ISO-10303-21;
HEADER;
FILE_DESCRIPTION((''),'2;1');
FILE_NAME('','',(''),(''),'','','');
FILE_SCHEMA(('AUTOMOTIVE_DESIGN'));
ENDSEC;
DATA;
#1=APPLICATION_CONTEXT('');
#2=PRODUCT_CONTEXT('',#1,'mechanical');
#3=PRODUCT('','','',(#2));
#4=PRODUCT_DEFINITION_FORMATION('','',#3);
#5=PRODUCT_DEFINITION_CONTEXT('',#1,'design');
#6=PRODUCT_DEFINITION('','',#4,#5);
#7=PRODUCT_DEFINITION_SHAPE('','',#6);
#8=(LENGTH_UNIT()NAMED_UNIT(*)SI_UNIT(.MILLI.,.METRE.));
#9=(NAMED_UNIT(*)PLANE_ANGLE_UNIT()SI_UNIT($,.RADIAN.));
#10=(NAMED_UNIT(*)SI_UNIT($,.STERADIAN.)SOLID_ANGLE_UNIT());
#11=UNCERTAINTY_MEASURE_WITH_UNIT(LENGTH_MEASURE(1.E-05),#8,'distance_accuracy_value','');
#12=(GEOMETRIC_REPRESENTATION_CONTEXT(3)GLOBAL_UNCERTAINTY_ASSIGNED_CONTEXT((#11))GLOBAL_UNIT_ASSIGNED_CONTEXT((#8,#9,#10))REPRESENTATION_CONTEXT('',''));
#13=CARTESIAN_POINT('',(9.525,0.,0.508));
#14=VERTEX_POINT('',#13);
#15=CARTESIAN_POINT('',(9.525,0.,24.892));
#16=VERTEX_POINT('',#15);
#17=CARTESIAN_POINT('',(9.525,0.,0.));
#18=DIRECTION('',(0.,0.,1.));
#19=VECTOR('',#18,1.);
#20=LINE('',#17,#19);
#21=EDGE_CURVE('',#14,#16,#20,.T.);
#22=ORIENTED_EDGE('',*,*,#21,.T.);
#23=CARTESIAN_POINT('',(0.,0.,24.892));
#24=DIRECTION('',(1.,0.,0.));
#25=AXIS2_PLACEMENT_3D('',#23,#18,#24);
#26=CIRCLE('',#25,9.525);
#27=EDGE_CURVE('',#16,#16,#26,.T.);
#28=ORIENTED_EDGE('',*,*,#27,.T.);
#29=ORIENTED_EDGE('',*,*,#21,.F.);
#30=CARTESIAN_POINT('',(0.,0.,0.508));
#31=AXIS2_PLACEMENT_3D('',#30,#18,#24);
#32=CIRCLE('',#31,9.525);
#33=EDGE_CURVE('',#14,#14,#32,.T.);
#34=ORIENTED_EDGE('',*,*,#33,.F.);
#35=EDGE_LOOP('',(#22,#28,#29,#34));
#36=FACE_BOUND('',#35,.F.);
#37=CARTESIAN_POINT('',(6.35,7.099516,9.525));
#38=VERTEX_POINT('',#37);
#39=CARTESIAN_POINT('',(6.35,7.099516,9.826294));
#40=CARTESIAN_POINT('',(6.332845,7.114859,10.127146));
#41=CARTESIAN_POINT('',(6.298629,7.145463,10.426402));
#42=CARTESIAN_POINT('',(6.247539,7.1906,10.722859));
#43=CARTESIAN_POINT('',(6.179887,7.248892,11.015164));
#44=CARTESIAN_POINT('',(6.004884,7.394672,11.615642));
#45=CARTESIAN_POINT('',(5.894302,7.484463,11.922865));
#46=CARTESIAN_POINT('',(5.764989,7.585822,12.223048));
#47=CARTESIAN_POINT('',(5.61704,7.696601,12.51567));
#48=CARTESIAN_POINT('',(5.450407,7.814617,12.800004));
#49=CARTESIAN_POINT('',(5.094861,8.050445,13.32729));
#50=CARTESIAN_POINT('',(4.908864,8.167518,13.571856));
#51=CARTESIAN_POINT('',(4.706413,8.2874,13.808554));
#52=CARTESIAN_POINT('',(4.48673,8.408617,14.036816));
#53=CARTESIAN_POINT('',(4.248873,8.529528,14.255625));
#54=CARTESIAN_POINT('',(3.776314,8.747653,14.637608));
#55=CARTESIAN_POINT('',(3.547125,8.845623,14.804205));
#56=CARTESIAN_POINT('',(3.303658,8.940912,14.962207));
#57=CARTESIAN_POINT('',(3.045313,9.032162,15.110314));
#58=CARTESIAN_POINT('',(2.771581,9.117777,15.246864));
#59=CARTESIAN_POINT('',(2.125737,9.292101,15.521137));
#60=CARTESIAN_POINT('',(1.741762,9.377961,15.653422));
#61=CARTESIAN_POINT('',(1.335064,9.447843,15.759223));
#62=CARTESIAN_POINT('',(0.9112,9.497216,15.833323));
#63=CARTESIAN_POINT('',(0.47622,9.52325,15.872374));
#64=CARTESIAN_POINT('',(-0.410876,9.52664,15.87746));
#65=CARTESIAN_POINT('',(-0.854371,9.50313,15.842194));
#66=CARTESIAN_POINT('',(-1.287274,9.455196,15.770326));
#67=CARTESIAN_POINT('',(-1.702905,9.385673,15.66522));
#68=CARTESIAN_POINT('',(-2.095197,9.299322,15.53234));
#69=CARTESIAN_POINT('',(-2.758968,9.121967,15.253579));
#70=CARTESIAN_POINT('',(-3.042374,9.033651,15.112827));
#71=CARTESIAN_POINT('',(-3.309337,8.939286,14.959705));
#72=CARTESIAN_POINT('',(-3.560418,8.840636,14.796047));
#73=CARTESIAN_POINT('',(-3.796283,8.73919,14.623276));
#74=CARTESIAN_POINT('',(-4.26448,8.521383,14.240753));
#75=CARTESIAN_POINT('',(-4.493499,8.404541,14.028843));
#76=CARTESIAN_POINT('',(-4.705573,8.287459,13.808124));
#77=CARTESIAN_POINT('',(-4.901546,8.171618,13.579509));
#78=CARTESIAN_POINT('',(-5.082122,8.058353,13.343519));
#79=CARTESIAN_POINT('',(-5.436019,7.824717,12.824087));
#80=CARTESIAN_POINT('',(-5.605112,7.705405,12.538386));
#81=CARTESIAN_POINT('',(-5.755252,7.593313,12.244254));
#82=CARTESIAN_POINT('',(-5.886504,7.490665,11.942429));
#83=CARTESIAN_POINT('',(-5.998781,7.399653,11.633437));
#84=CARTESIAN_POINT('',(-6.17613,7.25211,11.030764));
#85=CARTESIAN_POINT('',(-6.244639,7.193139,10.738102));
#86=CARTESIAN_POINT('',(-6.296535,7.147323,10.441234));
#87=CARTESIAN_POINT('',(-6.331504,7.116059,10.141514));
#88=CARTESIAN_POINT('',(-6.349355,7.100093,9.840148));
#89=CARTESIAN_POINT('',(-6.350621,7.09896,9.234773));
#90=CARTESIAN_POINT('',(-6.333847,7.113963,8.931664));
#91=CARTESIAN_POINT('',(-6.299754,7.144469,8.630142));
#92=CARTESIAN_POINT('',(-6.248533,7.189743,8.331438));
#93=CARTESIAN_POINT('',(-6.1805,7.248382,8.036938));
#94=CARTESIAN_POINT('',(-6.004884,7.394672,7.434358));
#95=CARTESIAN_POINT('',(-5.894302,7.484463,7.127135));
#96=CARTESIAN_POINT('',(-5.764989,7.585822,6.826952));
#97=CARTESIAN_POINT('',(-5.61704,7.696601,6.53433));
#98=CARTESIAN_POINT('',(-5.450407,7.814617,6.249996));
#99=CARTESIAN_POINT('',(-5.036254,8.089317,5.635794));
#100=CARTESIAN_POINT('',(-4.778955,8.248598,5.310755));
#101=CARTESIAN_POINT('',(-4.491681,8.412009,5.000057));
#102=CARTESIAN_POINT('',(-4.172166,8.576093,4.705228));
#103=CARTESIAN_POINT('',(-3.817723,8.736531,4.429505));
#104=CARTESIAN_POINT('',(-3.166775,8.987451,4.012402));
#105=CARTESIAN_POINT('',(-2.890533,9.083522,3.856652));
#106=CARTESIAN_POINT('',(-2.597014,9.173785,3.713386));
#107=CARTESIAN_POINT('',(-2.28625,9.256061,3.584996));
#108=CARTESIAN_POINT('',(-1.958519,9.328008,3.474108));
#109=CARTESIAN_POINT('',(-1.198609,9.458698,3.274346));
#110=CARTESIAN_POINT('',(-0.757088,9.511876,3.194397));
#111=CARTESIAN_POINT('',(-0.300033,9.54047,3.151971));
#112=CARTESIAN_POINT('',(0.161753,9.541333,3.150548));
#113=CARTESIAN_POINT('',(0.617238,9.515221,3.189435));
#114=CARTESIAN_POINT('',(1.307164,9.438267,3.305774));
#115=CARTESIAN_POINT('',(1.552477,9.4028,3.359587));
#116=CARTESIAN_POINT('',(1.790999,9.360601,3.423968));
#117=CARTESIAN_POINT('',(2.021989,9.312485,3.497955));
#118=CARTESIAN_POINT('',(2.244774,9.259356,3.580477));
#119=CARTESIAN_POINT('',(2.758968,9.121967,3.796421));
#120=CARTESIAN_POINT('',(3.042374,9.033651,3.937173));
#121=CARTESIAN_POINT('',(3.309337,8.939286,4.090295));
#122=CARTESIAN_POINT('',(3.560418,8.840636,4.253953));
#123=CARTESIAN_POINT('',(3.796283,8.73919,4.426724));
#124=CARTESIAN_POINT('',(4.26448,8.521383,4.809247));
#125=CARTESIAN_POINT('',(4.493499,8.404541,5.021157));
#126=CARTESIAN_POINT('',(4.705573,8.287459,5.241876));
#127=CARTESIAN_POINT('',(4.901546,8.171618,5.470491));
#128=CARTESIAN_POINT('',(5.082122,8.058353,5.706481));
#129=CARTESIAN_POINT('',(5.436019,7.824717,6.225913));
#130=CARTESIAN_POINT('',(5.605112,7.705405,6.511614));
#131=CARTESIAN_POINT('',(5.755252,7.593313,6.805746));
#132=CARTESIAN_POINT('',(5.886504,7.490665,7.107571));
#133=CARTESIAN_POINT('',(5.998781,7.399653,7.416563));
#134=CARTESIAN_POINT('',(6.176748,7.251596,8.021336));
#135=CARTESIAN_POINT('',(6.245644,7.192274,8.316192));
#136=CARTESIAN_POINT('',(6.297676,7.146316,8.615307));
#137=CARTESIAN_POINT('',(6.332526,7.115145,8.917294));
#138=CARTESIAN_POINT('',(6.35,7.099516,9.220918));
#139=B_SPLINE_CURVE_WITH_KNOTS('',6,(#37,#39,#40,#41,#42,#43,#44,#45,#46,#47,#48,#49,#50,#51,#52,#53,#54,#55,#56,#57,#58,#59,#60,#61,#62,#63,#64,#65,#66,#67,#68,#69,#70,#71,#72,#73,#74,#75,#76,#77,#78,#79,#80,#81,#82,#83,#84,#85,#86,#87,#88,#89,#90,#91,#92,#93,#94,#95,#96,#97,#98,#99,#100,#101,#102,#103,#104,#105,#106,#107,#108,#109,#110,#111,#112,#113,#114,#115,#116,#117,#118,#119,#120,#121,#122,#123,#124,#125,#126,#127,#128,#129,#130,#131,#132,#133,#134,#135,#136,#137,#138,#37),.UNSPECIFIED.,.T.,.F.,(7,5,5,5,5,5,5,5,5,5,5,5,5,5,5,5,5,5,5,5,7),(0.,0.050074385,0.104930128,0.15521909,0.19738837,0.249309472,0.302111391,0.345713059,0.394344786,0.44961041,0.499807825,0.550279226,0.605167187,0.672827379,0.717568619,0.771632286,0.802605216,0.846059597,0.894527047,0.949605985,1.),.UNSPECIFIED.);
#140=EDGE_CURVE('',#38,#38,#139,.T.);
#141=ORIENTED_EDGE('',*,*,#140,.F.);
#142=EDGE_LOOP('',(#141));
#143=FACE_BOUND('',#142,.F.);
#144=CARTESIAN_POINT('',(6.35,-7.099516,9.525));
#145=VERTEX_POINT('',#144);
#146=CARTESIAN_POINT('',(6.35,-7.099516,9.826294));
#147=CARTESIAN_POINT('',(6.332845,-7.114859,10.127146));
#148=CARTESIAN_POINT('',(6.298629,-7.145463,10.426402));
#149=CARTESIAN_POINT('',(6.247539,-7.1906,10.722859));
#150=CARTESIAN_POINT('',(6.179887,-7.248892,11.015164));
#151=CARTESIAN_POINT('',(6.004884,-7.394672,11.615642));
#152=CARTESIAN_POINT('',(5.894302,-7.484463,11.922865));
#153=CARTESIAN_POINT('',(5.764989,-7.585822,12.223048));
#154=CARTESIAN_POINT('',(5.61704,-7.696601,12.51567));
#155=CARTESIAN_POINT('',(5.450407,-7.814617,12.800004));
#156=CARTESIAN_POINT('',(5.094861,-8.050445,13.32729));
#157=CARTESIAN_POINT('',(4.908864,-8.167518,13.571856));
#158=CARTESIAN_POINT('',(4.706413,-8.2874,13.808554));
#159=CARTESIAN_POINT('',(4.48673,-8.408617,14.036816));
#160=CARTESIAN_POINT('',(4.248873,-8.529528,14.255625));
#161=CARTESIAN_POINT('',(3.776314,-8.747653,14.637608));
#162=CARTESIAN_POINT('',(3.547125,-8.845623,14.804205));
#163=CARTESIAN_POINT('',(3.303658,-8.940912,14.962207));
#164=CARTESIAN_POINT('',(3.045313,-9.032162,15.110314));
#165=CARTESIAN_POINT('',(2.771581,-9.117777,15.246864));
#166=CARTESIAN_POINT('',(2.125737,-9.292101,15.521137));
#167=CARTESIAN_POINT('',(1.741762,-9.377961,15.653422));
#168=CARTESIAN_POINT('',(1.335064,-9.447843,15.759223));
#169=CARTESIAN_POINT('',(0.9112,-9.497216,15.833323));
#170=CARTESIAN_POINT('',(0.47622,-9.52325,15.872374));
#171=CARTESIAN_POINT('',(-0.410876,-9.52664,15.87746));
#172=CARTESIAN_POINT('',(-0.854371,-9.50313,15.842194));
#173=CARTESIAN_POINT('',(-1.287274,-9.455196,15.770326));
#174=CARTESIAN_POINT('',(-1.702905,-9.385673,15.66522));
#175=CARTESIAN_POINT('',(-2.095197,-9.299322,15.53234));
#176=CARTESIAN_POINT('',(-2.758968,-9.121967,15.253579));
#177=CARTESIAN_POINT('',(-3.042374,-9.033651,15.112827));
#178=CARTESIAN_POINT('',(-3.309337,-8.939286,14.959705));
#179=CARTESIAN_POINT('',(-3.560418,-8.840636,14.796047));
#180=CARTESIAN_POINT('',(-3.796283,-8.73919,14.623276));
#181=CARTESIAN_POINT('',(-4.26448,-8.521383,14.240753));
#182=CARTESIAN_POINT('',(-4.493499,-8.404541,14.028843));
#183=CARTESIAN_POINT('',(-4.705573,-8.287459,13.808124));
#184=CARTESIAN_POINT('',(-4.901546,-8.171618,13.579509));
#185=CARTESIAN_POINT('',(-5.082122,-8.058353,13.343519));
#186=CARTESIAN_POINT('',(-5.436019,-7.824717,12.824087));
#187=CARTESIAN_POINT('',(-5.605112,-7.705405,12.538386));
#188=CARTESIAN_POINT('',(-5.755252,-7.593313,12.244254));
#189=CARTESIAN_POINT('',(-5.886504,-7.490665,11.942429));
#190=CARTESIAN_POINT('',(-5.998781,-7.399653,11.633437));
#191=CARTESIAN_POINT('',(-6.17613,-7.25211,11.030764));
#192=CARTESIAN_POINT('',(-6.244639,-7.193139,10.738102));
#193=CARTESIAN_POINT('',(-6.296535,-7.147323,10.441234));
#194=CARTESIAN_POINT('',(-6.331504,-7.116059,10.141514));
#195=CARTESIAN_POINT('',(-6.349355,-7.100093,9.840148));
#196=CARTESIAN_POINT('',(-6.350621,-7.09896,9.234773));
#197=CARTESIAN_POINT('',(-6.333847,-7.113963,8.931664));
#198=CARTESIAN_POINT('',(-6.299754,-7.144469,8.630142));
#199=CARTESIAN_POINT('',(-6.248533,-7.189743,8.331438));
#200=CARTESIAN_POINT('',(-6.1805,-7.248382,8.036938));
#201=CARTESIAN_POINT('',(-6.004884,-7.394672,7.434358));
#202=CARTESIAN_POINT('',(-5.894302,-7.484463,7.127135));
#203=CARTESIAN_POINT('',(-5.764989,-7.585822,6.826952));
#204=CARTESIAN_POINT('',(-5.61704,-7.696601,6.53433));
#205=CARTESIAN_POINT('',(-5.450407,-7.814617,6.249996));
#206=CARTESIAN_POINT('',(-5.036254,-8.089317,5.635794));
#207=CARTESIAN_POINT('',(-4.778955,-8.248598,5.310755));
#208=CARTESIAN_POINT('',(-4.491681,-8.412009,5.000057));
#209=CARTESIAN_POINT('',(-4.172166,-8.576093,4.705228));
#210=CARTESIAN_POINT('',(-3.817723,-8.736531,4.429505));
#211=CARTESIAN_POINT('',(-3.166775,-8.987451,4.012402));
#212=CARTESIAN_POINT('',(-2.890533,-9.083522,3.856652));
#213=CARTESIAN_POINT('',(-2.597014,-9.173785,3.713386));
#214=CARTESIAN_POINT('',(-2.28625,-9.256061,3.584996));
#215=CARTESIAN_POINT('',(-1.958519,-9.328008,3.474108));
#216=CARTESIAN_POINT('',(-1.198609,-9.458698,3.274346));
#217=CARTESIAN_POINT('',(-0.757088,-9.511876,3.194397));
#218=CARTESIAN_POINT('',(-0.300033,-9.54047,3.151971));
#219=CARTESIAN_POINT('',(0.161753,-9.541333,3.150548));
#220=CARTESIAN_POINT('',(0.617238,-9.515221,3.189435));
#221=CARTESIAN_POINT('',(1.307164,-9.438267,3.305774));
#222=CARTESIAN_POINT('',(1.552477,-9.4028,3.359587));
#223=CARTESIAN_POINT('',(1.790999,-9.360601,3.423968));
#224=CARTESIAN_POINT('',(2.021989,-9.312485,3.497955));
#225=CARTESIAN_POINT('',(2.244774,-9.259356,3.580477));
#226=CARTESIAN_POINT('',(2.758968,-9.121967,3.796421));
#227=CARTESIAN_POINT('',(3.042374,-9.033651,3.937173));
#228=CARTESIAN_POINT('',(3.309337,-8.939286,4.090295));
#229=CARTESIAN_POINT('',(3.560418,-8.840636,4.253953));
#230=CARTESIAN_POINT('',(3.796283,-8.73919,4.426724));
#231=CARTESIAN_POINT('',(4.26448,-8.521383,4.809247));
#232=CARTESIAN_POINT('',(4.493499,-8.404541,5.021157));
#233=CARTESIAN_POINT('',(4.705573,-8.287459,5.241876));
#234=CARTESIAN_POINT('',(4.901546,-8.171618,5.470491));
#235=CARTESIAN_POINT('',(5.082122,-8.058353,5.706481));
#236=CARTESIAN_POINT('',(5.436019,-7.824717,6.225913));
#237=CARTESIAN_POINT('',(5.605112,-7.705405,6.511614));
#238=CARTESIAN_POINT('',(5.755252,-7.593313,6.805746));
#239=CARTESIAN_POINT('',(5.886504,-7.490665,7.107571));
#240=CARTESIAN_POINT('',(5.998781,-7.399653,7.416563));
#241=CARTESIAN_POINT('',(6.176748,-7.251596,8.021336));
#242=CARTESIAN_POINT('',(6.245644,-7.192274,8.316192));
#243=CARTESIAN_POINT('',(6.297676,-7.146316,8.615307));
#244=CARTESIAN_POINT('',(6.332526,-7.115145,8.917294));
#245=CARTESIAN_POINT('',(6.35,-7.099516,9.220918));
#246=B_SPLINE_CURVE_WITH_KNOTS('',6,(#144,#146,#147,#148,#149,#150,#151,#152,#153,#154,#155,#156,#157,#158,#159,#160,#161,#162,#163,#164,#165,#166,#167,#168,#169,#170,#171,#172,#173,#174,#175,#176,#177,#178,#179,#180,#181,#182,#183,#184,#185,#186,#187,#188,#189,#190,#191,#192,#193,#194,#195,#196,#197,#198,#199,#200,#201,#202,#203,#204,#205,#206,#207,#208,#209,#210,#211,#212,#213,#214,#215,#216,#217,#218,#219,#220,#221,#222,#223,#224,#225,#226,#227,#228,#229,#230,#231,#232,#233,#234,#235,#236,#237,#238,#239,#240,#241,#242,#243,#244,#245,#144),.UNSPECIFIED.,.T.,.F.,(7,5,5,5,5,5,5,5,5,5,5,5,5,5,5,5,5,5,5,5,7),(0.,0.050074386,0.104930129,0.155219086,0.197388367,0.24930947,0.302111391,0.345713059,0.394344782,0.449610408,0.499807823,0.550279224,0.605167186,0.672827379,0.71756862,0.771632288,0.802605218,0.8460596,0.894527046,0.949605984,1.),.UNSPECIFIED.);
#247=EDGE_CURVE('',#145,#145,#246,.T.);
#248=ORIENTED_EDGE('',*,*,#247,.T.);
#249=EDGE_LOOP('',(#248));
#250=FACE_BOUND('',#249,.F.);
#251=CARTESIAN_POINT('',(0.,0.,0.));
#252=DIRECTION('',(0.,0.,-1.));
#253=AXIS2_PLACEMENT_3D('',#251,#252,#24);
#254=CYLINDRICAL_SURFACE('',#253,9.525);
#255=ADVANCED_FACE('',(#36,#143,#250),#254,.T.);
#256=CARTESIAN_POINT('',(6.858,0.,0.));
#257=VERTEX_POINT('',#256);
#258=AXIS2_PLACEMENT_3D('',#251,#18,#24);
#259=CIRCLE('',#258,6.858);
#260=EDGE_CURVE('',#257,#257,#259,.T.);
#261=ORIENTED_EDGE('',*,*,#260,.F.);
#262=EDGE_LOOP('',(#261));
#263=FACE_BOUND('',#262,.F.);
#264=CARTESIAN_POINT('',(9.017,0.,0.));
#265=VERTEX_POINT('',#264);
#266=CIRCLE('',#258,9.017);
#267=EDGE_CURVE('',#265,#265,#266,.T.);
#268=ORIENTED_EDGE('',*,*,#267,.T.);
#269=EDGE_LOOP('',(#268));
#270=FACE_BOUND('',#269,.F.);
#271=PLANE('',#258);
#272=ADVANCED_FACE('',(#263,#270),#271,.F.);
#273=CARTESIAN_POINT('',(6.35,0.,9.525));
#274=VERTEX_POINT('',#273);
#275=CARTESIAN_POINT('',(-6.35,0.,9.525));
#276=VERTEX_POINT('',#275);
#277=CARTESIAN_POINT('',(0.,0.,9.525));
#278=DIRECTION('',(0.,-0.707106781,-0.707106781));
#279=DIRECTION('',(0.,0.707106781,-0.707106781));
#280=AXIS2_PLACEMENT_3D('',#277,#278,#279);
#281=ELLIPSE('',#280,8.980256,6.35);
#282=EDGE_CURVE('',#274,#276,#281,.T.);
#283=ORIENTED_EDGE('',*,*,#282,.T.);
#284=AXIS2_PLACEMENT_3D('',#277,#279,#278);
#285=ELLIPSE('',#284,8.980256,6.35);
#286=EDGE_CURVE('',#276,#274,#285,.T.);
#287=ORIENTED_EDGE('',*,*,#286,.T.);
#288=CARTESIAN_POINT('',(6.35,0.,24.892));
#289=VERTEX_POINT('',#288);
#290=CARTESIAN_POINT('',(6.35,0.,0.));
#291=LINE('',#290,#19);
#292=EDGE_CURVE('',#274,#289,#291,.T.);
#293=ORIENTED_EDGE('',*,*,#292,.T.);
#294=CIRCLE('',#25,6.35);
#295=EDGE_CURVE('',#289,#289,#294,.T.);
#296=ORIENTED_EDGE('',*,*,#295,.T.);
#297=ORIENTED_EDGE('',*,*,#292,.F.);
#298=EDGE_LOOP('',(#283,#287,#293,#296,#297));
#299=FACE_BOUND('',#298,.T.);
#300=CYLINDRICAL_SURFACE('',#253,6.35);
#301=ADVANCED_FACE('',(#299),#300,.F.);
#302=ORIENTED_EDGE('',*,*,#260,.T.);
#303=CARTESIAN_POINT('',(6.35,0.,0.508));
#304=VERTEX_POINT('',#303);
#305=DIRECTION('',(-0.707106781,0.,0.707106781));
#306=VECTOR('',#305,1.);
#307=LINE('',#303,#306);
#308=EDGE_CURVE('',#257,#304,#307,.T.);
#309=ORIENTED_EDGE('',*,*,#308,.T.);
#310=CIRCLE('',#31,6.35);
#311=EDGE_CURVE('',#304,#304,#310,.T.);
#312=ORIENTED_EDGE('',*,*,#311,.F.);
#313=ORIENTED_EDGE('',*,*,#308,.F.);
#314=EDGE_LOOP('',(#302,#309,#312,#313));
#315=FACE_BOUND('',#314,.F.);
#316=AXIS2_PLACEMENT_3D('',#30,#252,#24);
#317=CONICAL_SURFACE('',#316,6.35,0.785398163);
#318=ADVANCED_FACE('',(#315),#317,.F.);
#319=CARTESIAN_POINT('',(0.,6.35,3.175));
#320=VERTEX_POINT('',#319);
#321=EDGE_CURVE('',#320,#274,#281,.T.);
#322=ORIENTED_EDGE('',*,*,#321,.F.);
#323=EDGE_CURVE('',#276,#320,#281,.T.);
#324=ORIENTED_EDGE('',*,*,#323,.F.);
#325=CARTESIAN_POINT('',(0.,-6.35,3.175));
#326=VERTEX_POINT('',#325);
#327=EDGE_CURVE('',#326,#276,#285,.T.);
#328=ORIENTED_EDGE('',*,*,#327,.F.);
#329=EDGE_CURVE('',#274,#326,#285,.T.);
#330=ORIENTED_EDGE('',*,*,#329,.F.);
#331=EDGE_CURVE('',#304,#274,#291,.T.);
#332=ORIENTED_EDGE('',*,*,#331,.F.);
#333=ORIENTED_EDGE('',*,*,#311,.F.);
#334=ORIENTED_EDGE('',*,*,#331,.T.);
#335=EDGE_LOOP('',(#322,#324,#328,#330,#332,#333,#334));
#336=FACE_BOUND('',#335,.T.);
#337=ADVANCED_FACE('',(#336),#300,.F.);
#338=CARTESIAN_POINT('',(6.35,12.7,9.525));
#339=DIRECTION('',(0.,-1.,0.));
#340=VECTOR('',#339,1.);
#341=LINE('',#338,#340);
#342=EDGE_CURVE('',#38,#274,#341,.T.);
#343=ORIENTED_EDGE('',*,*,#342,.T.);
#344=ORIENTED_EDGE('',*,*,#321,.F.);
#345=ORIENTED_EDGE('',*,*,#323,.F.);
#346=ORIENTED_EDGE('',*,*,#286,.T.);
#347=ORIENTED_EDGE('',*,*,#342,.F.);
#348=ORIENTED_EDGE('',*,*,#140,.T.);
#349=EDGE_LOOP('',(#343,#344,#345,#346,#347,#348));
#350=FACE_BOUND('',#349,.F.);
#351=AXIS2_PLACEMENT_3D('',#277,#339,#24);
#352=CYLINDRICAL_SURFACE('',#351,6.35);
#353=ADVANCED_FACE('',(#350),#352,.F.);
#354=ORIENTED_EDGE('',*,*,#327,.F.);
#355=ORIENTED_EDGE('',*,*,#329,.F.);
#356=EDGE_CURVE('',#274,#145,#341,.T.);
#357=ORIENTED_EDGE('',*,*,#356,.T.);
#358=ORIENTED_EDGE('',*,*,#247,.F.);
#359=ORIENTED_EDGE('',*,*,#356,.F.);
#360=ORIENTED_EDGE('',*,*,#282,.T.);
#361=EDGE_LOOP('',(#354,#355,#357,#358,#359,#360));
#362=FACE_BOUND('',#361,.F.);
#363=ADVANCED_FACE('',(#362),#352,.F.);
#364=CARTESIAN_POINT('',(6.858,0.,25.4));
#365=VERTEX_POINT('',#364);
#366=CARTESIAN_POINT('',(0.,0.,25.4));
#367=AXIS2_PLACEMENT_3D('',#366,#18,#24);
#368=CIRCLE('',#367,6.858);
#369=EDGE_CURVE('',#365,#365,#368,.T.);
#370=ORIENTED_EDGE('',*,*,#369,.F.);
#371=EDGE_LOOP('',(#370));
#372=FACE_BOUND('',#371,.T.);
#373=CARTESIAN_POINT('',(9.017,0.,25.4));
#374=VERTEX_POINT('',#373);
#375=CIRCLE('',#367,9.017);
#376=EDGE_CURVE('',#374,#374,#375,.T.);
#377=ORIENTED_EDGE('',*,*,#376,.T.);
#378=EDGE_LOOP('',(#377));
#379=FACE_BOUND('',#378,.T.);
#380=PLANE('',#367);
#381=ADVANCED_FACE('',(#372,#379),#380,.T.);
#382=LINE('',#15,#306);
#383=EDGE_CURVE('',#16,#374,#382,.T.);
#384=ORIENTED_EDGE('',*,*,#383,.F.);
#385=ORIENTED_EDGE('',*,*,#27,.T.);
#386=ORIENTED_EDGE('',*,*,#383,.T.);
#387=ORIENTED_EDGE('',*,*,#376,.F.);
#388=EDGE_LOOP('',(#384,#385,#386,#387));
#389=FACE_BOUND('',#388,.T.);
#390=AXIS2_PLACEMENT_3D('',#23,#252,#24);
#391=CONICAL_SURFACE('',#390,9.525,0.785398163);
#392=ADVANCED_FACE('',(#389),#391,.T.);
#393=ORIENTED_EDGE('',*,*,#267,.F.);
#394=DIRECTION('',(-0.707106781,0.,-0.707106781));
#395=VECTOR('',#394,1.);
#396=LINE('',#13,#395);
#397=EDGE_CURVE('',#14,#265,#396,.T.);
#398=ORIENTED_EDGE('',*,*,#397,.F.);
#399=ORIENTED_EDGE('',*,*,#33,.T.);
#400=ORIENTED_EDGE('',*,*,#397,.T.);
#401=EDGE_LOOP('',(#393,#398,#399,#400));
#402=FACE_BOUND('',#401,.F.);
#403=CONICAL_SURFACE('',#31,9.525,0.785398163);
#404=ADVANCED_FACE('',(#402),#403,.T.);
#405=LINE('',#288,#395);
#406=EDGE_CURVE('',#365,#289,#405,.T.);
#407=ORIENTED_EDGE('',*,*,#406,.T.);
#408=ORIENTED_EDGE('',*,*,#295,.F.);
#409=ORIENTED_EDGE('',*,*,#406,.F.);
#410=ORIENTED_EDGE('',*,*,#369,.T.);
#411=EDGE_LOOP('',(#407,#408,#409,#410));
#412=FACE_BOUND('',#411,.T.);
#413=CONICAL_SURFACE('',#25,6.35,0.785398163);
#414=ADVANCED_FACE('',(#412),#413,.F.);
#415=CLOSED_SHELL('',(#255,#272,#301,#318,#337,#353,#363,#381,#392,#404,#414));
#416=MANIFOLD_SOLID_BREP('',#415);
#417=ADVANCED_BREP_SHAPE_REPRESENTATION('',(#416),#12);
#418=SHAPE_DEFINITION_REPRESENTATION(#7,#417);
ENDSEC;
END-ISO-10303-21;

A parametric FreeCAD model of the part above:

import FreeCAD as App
import Part
import Sketcher
Q = App.Units.Quantity


def edges_at(feature, points):
    """Names of the edges that pass closest to the given points."""
    edges = feature.Shape.Edges
    near = lambda p: min(range(len(edges)), key=lambda i: edges[i].distToShape(Part.Vertex(*p))[0])
    return sorted({f"Edge{near(p) + 1}" for p in points})

doc = App.newDocument("Part")
body = doc.addObject("PartDesign::Body", "Body")

# Sketch on XY plane
sketch1 = body.newObject("Sketcher::SketchObject", "Sketch")
sketch1.AttachmentSupport = (doc.getObject("XY_Plane"), [""])
sketch1.MapMode = "FlatFace"
sketch1.addGeometry(Part.Circle(App.Vector(0, 0, 0), App.Vector(0, 0, 1), 10), False)
sketch1.addGeometry(Part.Circle(App.Vector(0, 0, 0), App.Vector(0, 0, 1), 6), False)
sketch1.addConstraint(Sketcher.Constraint("Coincident", 0, 3, -1, 1))
sketch1.addConstraint(Sketcher.Constraint("Coincident", 1, 3, -1, 1))
sketch1.addConstraint(Sketcher.Constraint("Diameter", 1, Q("0.5 in")))
sketch1.addConstraint(Sketcher.Constraint("Diameter", 0, Q("0.75 in")))
pad1 = body.newObject("PartDesign::Pad", "Pad")
pad1.Profile = sketch1
pad1.Length = Q("1 in")

# Sketch on XZ plane
sketch2 = body.newObject("Sketcher::SketchObject", "Sketch001")
sketch2.AttachmentSupport = (doc.getObject("XZ_Plane"), [""])
sketch2.MapMode = "FlatFace"
sketch2.addGeometry(Part.Circle(App.Vector(0, 10, 0), App.Vector(0, 0, 1), 6), False)
sketch2.addConstraint(Sketcher.Constraint("PointOnObject", 0, 3, -2))
sketch2.addConstraint(Sketcher.Constraint("Diameter", 0, Q("0.5 in")))
sketch2.addConstraint(Sketcher.Constraint("DistanceY", -1, 1, 0, 3, Q("0.375 in")))
pocket1 = body.newObject("PartDesign::Pocket", "Pocket")
pocket1.Profile = sketch2
pocket1.Length = Q("1 in")
pocket1.Midplane = True
doc.recompute()

chamfer = body.newObject("PartDesign::Chamfer", "Chamfer")
chamfer.Base = (pocket1, edges_at(pocket1, [
    (-6.35, 0, 25.4),
    (-9.525, 0, 25.4),
    (-6.35, 0, 0),
    (-9.525, 0, 0),
]))
chamfer.Size = Q("0.02 in")

doc.recompute()
